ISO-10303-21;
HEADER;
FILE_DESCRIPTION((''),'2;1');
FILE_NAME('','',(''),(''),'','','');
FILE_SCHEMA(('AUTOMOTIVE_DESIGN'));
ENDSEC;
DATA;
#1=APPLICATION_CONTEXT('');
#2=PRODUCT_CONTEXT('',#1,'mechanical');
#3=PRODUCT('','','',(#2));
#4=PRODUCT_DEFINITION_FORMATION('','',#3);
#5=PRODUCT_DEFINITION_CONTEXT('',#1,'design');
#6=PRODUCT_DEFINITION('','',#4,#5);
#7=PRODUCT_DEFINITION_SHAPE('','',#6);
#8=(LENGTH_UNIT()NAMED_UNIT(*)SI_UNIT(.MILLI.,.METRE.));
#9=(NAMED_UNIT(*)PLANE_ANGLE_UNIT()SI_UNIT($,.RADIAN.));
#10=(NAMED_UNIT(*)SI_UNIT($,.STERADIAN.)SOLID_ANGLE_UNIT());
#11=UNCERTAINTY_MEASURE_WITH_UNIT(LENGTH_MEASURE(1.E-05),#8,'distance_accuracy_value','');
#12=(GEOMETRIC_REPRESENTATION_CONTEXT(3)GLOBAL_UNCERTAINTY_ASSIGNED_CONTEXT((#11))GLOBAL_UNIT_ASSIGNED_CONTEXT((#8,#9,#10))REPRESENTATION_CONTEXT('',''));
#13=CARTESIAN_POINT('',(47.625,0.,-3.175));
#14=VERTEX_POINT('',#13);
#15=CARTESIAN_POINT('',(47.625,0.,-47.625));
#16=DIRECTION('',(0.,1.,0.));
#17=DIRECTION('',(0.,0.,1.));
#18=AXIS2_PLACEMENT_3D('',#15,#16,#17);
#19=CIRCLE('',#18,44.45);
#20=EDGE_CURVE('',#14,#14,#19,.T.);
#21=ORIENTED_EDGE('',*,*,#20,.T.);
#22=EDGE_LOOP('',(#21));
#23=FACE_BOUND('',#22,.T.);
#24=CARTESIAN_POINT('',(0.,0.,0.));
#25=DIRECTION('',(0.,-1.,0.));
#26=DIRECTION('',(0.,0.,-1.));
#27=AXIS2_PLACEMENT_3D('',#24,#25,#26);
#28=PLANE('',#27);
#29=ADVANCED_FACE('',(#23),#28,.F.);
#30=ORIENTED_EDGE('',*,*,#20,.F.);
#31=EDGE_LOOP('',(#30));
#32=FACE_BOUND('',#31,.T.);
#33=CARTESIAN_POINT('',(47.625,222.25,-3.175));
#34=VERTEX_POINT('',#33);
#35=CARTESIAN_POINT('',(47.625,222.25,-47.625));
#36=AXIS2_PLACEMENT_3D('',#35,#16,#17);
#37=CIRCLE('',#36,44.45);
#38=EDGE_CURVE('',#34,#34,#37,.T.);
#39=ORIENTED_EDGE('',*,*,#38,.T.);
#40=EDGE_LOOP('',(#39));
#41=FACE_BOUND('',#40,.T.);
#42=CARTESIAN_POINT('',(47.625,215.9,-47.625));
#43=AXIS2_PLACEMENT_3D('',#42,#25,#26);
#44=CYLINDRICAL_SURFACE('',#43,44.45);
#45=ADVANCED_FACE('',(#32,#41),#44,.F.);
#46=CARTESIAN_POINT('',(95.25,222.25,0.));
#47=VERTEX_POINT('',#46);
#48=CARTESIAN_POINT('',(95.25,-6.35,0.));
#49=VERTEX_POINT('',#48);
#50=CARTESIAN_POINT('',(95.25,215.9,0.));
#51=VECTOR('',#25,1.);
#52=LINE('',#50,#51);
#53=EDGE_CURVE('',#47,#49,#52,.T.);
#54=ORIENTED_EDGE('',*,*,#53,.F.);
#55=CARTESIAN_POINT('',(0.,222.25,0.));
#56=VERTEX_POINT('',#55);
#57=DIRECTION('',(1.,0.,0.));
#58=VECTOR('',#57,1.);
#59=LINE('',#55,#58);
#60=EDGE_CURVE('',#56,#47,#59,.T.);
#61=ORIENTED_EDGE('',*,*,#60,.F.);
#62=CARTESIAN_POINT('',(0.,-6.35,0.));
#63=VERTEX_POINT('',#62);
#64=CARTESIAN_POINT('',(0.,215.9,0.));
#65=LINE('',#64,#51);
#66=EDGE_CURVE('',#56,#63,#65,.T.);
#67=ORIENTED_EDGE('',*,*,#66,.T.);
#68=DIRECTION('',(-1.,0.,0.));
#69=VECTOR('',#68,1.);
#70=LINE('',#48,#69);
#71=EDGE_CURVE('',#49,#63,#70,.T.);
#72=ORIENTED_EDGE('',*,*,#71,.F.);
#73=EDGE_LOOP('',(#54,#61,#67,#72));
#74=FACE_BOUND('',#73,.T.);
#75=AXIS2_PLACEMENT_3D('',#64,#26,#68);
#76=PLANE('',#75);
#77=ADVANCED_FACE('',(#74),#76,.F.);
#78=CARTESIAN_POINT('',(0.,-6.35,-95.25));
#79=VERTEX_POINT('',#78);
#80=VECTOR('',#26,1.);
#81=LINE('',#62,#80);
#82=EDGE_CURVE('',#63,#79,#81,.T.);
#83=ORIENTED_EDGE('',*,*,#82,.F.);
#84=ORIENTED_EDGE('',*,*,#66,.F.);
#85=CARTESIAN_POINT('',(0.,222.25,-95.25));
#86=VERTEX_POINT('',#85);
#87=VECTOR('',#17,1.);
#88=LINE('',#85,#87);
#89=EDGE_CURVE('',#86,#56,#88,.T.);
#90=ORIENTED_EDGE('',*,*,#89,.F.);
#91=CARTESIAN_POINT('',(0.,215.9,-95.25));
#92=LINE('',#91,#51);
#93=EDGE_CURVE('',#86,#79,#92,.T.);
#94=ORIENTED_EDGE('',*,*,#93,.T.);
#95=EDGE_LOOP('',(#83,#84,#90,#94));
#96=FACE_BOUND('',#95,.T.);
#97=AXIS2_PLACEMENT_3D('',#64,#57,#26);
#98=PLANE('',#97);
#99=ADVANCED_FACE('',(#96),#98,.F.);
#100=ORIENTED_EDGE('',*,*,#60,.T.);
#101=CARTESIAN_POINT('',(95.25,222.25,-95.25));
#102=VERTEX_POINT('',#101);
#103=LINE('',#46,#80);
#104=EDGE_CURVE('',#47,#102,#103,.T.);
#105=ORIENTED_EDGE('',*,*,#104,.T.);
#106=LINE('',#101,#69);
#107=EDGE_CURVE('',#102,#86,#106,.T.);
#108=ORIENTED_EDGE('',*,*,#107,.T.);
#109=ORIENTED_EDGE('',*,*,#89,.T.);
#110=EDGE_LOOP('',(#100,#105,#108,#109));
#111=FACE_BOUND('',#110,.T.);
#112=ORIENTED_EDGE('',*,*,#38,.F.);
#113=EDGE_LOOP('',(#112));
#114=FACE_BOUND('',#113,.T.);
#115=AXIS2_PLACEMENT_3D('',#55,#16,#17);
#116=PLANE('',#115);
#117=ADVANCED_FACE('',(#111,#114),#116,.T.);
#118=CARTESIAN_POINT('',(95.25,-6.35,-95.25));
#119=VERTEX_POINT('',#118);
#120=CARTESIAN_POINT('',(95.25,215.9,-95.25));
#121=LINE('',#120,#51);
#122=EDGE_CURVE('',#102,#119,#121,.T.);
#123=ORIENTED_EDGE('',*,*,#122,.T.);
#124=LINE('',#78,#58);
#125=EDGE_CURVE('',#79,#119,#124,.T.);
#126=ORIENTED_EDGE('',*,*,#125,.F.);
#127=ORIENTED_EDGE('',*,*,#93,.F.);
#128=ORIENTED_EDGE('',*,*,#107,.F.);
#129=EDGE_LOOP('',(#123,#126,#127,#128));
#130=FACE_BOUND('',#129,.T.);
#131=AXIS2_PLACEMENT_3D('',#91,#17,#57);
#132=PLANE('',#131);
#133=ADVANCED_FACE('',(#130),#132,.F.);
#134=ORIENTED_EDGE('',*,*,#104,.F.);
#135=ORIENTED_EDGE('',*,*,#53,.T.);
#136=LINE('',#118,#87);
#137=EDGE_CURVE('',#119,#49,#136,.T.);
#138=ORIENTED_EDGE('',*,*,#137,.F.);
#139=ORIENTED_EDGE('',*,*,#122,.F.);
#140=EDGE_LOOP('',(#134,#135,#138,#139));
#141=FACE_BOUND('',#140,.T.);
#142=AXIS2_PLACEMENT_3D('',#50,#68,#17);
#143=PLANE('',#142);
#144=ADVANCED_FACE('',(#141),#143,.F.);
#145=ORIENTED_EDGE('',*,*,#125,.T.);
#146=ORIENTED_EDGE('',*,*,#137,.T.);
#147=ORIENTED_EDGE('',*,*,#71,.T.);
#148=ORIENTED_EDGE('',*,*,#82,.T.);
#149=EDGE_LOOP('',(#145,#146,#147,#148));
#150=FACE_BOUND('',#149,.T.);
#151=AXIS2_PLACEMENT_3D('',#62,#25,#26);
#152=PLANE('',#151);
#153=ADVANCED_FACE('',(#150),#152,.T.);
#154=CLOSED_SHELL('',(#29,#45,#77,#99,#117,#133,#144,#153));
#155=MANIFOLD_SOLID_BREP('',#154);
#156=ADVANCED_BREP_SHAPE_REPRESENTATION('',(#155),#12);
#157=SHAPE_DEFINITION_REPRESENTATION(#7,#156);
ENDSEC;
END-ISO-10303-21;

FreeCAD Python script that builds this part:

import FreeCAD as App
import Part
import Sketcher

V = App.Vector
Q = App.Units.Quantity

doc = App.newDocument("Part")
params = doc.addObject("Spreadsheet::Sheet", "Params")
for row, (alias, value) in enumerate([
    ("sketch1_diameter", "3.5 in"),
    ("sketch1_width", "3.75 in"),
    ("pad1_length", "8.5 in"),
    ("sketch2_width", "3.75 in"),
    ("pad2_length", "0.25 in"),
    ("sketch3_diameter", "3.5 in"),
    ("sketch3_width", "3.75 in"),
    ("pad3_length", "0.25 in"),
], start=1):
    params.set(f"A{row}", alias)
    params.set(f"B{row}", "=" + value)
    params.setAlias(f"B{row}", alias)

body = doc.addObject("PartDesign::Body", "Body")

# Sketch on XZ plane
sketch1 = body.newObject("Sketcher::SketchObject", "Sketch")
sketch1.AttachmentSupport = (doc.getObject("XZ_Plane"), [""])
sketch1.MapMode = "FlatFace"
sketch1.addGeometry(Part.LineSegment(V(0, -95, 0), V(0, 0, 0)), False)
sketch1.addGeometry(Part.LineSegment(V(0, 0, 0), V(95, 0, 0)), False)
sketch1.addGeometry(Part.LineSegment(V(95, 0, 0), V(95, -95, 0)), False)
sketch1.addGeometry(Part.LineSegment(V(95, -95, 0), V(0, -95, 0)), False)
sketch1.addGeometry(Part.Circle(V(48, -48, 0), V(0, 0, 1), 44), False)
sketch1.addConstraint(Sketcher.Constraint("Coincident", 0, 2, 1, 1))
sketch1.addConstraint(Sketcher.Constraint("Coincident", 1, 2, 2, 1))
sketch1.addConstraint(Sketcher.Constraint("Coincident", 2, 2, 3, 1))
sketch1.addConstraint(Sketcher.Constraint("Coincident", 3, 2, 0, 1))
sketch1.addConstraint(Sketcher.Constraint("Vertical", 0))
sketch1.addConstraint(Sketcher.Constraint("Horizontal", 1))
sketch1.addConstraint(Sketcher.Constraint("Vertical", 2))
sketch1.addConstraint(Sketcher.Constraint("Horizontal", 3))
sketch1.addConstraint(Sketcher.Constraint("Coincident", 0, 2, -1, 1))
sketch1.addConstraint(Sketcher.Constraint("Equal", 3, 0))
sketch1.addConstraint(Sketcher.Constraint("Diameter", 4, Q("3.5 in")))
sketch1.addConstraint(Sketcher.Constraint("DistanceX", 1, 1, 1, 2, Q("3.75 in")))
sketch1.addConstraint(Sketcher.Constraint("DistanceX", -1, 1, 4, 3, Q("1.875 in")))
sketch1.addConstraint(Sketcher.Constraint("DistanceY", 4, 3, -1, 1, Q("1.875 in")))
sketch1.setExpression("Constraints[10]", "Params.sketch1_diameter")
sketch1.setExpression("Constraints[11]", "Params.sketch1_width")
pad1 = body.newObject("PartDesign::Pad", "Pad")
pad1.Profile = sketch1
pad1.setExpression("Length", "Params.pad1_length")
pad1.Reversed = True

# Sketch on XZ plane
sketch2 = body.newObject("Sketcher::SketchObject", "Sketch001")
sketch2.AttachmentSupport = (doc.getObject("XZ_Plane"), [""])
sketch2.MapMode = "FlatFace"
sketch2.addGeometry(Part.LineSegment(V(0, 0, 0), V(0, -95, 0)), False)
sketch2.addGeometry(Part.LineSegment(V(0, -95, 0), V(95, -95, 0)), False)
sketch2.addGeometry(Part.LineSegment(V(95, -95, 0), V(95, 0, 0)), False)
sketch2.addGeometry(Part.LineSegment(V(95, 0, 0), V(0, 0, 0)), False)
sketch2.addConstraint(Sketcher.Constraint("Coincident", 0, 2, 1, 1))
sketch2.addConstraint(Sketcher.Constraint("Coincident", 1, 2, 2, 1))
sketch2.addConstraint(Sketcher.Constraint("Coincident", 2, 2, 3, 1))
sketch2.addConstraint(Sketcher.Constraint("Coincident", 3, 2, 0, 1))
sketch2.addConstraint(Sketcher.Constraint("Vertical", 0))
sketch2.addConstraint(Sketcher.Constraint("Horizontal", 1))
sketch2.addConstraint(Sketcher.Constraint("Vertical", 2))
sketch2.addConstraint(Sketcher.Constraint("Horizontal", 3))
sketch2.addConstraint(Sketcher.Constraint("Coincident", 3, 2, -1, 1))
sketch2.addConstraint(Sketcher.Constraint("Equal", 3, 0))
sketch2.addConstraint(Sketcher.Constraint("DistanceX", 1, 1, 1, 2, Q("3.75 in")))
sketch2.setExpression("Constraints[10]", "Params.sketch2_width")
pad2 = body.newObject("PartDesign::Pad", "Pad001")
pad2.Profile = sketch2
pad2.setExpression("Length", "Params.pad2_length")

# Sketch on XZ plane
sketch3 = body.newObject("Sketcher::SketchObject", "Sketch002")
sketch3.AttachmentSupport = (doc.getObject("XZ_Plane"), [""])
sketch3.MapMode = "FlatFace"
sketch3.AttachmentOffset = App.Placement(V(0, 0, -8.5 * 25.4), App.Rotation())
sketch3.addGeometry(Part.LineSegment(V(0, -95, 0), V(0, 0, 0)), False)
sketch3.addGeometry(Part.LineSegment(V(0, 0, 0), V(95, 0, 0)), False)
sketch3.addGeometry(Part.LineSegment(V(95, 0, 0), V(95, -95, 0)), False)
sketch3.addGeometry(Part.LineSegment(V(95, -95, 0), V(0, -95, 0)), False)
sketch3.addGeometry(Part.Circle(V(48, -48, 0), V(0, 0, 1), 44), False)
sketch3.addConstraint(Sketcher.Constraint("Coincident", 0, 2, 1, 1))
sketch3.addConstraint(Sketcher.Constraint("Coincident", 1, 2, 2, 1))
sketch3.addConstraint(Sketcher.Constraint("Coincident", 2, 2, 3, 1))
sketch3.addConstraint(Sketcher.Constraint("Coincident", 3, 2, 0, 1))
sketch3.addConstraint(Sketcher.Constraint("Vertical", 0))
sketch3.addConstraint(Sketcher.Constraint("Horizontal", 1))
sketch3.addConstraint(Sketcher.Constraint("Vertical", 2))
sketch3.addConstraint(Sketcher.Constraint("Horizontal", 3))
sketch3.addConstraint(Sketcher.Constraint("Coincident", 0, 2, -1, 1))
sketch3.addConstraint(Sketcher.Constraint("Equal", 3, 0))
sketch3.addConstraint(Sketcher.Constraint("Diameter", 4, Q("3.5 in")))
sketch3.addConstraint(Sketcher.Constraint("DistanceX", 1, 1, 1, 2, Q("3.75 in")))
sketch3.addConstraint(Sketcher.Constraint("DistanceX", -1, 1, 4, 3, Q("1.875 in")))
sketch3.addConstraint(Sketcher.Constraint("DistanceY", 4, 3, -1, 1, Q("1.875 in")))
sketch3.setExpression("Constraints[10]", "Params.sketch3_diameter")
sketch3.setExpression("Constraints[11]", "Params.sketch3_width")
pad3 = body.newObject("PartDesign::Pad", "Pad002")
pad3.Profile = sketch3
pad3.setExpression("Length", "Params.pad3_length")
pad3.Reversed = True

doc.recompute()
